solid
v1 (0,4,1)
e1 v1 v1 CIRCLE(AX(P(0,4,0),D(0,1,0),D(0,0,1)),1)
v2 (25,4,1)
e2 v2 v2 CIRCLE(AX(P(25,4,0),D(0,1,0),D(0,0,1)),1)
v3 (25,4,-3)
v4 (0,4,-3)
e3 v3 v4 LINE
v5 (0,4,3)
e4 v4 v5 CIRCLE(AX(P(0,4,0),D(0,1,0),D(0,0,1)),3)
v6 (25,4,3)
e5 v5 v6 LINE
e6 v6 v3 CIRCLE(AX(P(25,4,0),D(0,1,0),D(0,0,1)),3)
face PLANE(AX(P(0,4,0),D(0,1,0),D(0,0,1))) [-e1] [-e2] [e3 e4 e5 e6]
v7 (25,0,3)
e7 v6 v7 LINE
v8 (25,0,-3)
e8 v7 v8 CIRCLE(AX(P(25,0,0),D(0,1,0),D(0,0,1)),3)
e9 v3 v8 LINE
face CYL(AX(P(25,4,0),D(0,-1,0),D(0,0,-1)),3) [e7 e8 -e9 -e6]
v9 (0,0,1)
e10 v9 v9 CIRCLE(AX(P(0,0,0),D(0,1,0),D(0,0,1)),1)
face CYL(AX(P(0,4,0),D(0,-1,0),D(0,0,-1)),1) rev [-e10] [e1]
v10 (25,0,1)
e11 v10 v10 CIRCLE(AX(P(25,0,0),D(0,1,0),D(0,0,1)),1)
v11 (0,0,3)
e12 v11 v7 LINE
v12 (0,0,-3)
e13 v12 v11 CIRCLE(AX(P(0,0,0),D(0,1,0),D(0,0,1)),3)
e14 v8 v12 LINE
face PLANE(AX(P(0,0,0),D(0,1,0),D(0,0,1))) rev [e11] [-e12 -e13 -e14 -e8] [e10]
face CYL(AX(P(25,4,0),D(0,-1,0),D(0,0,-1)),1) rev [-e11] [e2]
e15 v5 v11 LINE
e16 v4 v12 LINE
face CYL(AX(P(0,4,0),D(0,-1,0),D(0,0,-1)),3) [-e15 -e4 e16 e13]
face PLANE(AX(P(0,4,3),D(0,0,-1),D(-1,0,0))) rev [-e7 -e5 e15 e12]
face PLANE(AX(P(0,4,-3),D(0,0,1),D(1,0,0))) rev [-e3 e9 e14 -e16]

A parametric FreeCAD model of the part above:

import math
import FreeCAD as App
import Part
import Sketcher
from FreeCAD import Vector
Q = App.Units.Quantity

doc = App.newDocument("Part")
body = doc.addObject("PartDesign::Body", "Body")

# Sketch on XZ plane
sketch1 = body.newObject("Sketcher::SketchObject", "Sketch")
sketch1.AttachmentSupport = (doc.getObject("XZ_Plane"), [""])
sketch1.MapMode = "FlatFace"
sketch1.addGeometry(Part.LineSegment(Vector(25, -3, 0), Vector(0, -3, 0)), False)
sketch1.addGeometry(Part.ArcOfCircle(Part.Circle(Vector(0, 0, 0), Vector(0, 0, 1), 3), math.radians(90), math.radians(270)), False)
sketch1.addGeometry(Part.LineSegment(Vector(0, 3, 0), Vector(25, 3, 0)), False)
sketch1.addGeometry(Part.ArcOfCircle(Part.Circle(Vector(25, 0, 0), Vector(0, 0, 1), 3), math.radians(-90), math.radians(90)), False)
sketch1.addGeometry(Part.Circle(Vector(25, 0, 0), Vector(0, 0, 1), 1), False)
sketch1.addGeometry(Part.Circle(Vector(0, 0, 0), Vector(0, 0, 1), 1), False)
sketch1.addConstraint(Sketcher.Constraint("Tangent", 0, 2, 1, 2))
sketch1.addConstraint(Sketcher.Constraint("Tangent", 1, 1, 2, 1))
sketch1.addConstraint(Sketcher.Constraint("Tangent", 2, 2, 3, 2))
sketch1.addConstraint(Sketcher.Constraint("Tangent", 3, 1, 0, 1))
sketch1.addConstraint(Sketcher.Constraint("Horizontal", 0))
sketch1.addConstraint(Sketcher.Constraint("Horizontal", 2))
sketch1.addConstraint(Sketcher.Constraint("Coincident", 1, 3, -1, 1))
sketch1.addConstraint(Sketcher.Constraint("Coincident", 5, 3, -1, 1))
sketch1.addConstraint(Sketcher.Constraint("Coincident", 4, 3, 3, 3))
sketch1.addConstraint(Sketcher.Constraint("Equal", 4, 5))
sketch1.addConstraint(Sketcher.Constraint("Diameter", 4, Q("2 mm")))
sketch1.addConstraint(Sketcher.Constraint("Radius", 1, Q("3 mm")))
sketch1.addConstraint(Sketcher.Constraint("DistanceX", 0, 2, 0, 1, Q("25 mm")))
pad1 = body.newObject("PartDesign::Pad", "Pad")
pad1.Profile = sketch1
pad1.Length = 4
pad1.Reversed = True

doc.recompute()
